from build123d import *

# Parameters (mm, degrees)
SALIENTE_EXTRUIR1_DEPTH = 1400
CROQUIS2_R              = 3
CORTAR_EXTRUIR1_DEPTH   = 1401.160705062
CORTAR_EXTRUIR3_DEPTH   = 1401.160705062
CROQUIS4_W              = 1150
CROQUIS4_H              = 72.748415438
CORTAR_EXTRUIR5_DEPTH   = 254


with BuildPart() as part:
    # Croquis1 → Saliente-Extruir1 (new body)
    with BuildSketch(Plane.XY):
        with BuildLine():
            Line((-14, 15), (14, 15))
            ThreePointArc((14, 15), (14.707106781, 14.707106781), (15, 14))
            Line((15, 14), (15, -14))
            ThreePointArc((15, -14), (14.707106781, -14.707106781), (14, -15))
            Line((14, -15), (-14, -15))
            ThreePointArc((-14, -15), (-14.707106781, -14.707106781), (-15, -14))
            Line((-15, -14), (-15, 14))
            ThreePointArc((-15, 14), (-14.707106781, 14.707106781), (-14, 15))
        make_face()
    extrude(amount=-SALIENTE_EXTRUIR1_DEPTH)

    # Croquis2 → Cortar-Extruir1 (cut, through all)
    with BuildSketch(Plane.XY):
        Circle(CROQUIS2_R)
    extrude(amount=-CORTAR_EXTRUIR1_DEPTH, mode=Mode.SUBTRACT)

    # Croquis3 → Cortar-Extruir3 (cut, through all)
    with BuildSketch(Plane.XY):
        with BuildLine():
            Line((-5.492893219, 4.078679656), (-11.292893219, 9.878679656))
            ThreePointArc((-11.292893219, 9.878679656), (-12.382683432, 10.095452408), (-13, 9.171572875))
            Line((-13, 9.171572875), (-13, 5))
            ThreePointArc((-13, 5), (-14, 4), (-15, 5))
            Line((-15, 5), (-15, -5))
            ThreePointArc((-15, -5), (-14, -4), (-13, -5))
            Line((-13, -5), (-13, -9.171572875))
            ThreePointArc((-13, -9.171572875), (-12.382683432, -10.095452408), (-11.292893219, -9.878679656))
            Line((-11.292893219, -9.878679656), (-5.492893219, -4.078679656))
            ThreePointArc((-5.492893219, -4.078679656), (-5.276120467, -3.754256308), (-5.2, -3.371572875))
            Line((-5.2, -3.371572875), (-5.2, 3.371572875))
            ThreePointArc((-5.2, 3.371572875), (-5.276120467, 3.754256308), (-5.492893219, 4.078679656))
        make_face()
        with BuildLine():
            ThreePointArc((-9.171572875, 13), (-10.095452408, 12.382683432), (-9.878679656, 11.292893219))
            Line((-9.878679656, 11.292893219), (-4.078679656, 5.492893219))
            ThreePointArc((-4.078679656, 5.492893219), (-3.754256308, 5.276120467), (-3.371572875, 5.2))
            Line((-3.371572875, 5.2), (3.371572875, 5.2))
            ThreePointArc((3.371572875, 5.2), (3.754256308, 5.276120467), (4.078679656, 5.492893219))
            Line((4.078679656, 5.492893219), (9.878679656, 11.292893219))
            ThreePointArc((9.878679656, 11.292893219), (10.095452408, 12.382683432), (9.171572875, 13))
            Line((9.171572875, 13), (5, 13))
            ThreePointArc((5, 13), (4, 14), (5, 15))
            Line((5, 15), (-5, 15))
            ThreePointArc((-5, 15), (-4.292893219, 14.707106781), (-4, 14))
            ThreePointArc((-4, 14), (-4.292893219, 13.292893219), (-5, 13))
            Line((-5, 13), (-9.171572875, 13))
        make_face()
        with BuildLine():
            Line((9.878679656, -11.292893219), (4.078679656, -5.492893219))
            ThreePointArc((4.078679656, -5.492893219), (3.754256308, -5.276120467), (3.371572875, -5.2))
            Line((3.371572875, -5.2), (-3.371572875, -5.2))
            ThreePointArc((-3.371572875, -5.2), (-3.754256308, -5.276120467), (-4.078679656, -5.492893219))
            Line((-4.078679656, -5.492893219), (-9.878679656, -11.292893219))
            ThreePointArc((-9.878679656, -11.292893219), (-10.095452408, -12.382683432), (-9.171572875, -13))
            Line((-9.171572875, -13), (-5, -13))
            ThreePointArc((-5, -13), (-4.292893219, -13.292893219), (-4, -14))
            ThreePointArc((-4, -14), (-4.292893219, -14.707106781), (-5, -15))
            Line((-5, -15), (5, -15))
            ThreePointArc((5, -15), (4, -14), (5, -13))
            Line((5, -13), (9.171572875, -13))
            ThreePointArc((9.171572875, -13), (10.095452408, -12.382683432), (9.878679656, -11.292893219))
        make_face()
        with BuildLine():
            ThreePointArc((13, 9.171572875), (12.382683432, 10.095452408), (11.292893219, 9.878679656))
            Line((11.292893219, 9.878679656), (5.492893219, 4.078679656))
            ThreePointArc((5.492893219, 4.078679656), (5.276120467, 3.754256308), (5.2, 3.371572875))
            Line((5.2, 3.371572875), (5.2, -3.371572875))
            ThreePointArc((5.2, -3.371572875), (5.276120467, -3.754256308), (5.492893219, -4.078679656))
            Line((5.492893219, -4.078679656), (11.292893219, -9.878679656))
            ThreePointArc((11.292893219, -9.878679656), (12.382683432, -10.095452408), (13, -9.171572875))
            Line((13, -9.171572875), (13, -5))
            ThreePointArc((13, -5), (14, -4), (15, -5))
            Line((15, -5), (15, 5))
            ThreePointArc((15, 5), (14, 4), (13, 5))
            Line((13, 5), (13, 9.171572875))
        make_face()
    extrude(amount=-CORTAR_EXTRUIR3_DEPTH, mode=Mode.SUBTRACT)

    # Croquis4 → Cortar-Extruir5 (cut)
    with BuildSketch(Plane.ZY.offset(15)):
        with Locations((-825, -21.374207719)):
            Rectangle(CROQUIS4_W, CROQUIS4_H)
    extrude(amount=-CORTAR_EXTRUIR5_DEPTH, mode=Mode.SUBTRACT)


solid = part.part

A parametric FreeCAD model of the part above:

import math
import FreeCAD as App
import Part
import Sketcher

V = App.Vector
Q = App.Units.Quantity

doc = App.newDocument("Part")
body = doc.addObject("PartDesign::Body", "Body")

sketch1 = body.newObject("Sketcher::SketchObject", "Sketch")
sketch1.AttachmentSupport = (doc.getObject("XY_Plane"), [""])
sketch1.MapMode = "FlatFace"
sketch1.addGeometry(Part.LineSegment(V(14, 15, 0), V(-14, 15, 0)), False)
sketch1.addGeometry(Part.ArcOfCircle(Part.Circle(V(-14, 14, 0), V(0, 0, 1), 1), math.radians(90), math.radians(180)), False)
sketch1.addGeometry(Part.LineSegment(V(-15, 14, 0), V(-15, -14, 0)), False)
sketch1.addGeometry(Part.ArcOfCircle(Part.Circle(V(-14, -14, 0), V(0, 0, 1), 1), math.radians(-180), math.radians(-90)), False)
sketch1.addGeometry(Part.LineSegment(V(-14, -15, 0), V(14, -15, 0)), False)
sketch1.addGeometry(Part.ArcOfCircle(Part.Circle(V(14, -14, 0), V(0, 0, 1), 1), math.radians(-90), math.radians(0)), False)
sketch1.addGeometry(Part.LineSegment(V(15, -14, 0), V(15, 14, 0)), False)
sketch1.addGeometry(Part.ArcOfCircle(Part.Circle(V(14, 14, 0), V(0, 0, 1), 1), math.radians(0), math.radians(90)), False)
sketch1.addConstraint(Sketcher.Constraint("Tangent", 0, 2, 1, 1))
sketch1.addConstraint(Sketcher.Constraint("Tangent", 1, 2, 2, 1))
sketch1.addConstraint(Sketcher.Constraint("Tangent", 2, 2, 3, 1))
sketch1.addConstraint(Sketcher.Constraint("Tangent", 3, 2, 4, 1))
sketch1.addConstraint(Sketcher.Constraint("Tangent", 4, 2, 5, 1))
sketch1.addConstraint(Sketcher.Constraint("Tangent", 5, 2, 6, 1))
sketch1.addConstraint(Sketcher.Constraint("Tangent", 6, 2, 7, 1))
sketch1.addConstraint(Sketcher.Constraint("Tangent", 7, 2, 0, 1))
sketch1.addConstraint(Sketcher.Constraint("Horizontal", 0))
sketch1.addConstraint(Sketcher.Constraint("Vertical", 2))
sketch1.addConstraint(Sketcher.Constraint("Horizontal", 4))
sketch1.addConstraint(Sketcher.Constraint("Vertical", 6))
sketch1.addConstraint(Sketcher.Constraint("Equal", 1, 3))
sketch1.addConstraint(Sketcher.Constraint("Equal", 3, 5))
sketch1.addConstraint(Sketcher.Constraint("Equal", 5, 7))
sketch1.addConstraint(Sketcher.Constraint("Symmetric", 1, 3, 5, 3, -1, 1))
sketch1.addConstraint(Sketcher.Constraint("Equal", 4, 2))
sketch1.addConstraint(Sketcher.Constraint("Radius", 1, Q("1 mm")))
sketch1.addConstraint(Sketcher.Constraint("DistanceX", 0, 2, 0, 1, Q("28 mm")))
pad1 = body.newObject("PartDesign::Pad", "Pad")
pad1.Profile = sketch1
pad1.Length = 1400
pad1.Reversed = True

sketch2 = body.newObject("Sketcher::SketchObject", "Sketch001")
sketch2.AttachmentSupport = (doc.getObject("XY_Plane"), [""])
sketch2.MapMode = "FlatFace"
sketch2.addGeometry(Part.Circle(V(0, 0, 0), V(0, 0, 1), 3), False)
sketch2.addConstraint(Sketcher.Constraint("Coincident", 0, 3, -1, 1))
sketch2.addConstraint(Sketcher.Constraint("Diameter", 0, Q("6 mm")))
pocket1 = body.newObject("PartDesign::Pocket", "Pocket")
pocket1.Profile = sketch2
pocket1.Type = "ThroughAll"

sketch3 = body.newObject("Sketcher::SketchObject", "Sketch002")
sketch3.AttachmentSupport = (doc.getObject("XY_Plane"), [""])
sketch3.MapMode = "FlatFace"
sketch3.addGeometry(Part.LineSegment(V(-5.5, 4.1, 0), V(-11.3, 9.9, 0)), False)
sketch3.addGeometry(Part.ArcOfCircle(Part.Circle(V(-12, 9.2, 0), V(0, 0, 1), 1), math.radians(45), math.radians(180)), False)
sketch3.addGeometry(Part.LineSegment(V(-13, 9.2, 0), V(-13, 5, 0)), False)
sketch3.addGeometry(Part.ArcOfCircle(Part.Circle(V(-14, 5, 0), V(0, 0, 1), 1), math.radians(180), math.radians(360)), False)
sketch3.addGeometry(Part.LineSegment(V(-15, 5, 0), V(-15, -5, 0)), False)
sketch3.addGeometry(Part.ArcOfCircle(Part.Circle(V(-14, -5, 0), V(0, 0, 1), 1), math.radians(0), math.radians(180)), False)
sketch3.addGeometry(Part.LineSegment(V(-13, -5, 0), V(-13, -9.2, 0)), False)
sketch3.addGeometry(Part.ArcOfCircle(Part.Circle(V(-12, -9.2, 0), V(0, 0, 1), 1), math.radians(180), math.radians(315)), False)
sketch3.addGeometry(Part.LineSegment(V(-11.3, -9.9, 0), V(-5.5, -4.1, 0)), False)
sketch3.addGeometry(Part.ArcOfCircle(Part.Circle(V(-6.2, -3.4, 0), V(0, 0, 1), 1), math.radians(-45), math.radians(0)), False)
sketch3.addGeometry(Part.LineSegment(V(-5.2, -3.4, 0), V(-5.2, 3.4, 0)), False)
sketch3.addGeometry(Part.ArcOfCircle(Part.Circle(V(-6.2, 3.4, 0), V(0, 0, 1), 1), math.radians(0), math.radians(45)), False)
sketch3.addGeometry(Part.ArcOfCircle(Part.Circle(V(-9.2, 12, 0), V(0, 0, 1), 1), math.radians(90), math.radians(225)), False)
sketch3.addGeometry(Part.LineSegment(V(-9.9, 11.3, 0), V(-4.1, 5.5, 0)), False)
sketch3.addGeometry(Part.ArcOfCircle(Part.Circle(V(-3.4, 6.2, 0), V(0, 0, 1), 1), math.radians(-135), math.radians(-90)), False)
sketch3.addGeometry(Part.LineSegment(V(-3.4, 5.2, 0), V(3.4, 5.2, 0)), False)
sketch3.addGeometry(Part.ArcOfCircle(Part.Circle(V(3.4, 6.2, 0), V(0, 0, 1), 1), math.radians(-90), math.radians(-45)), False)
sketch3.addGeometry(Part.LineSegment(V(4.1, 5.5, 0), V(9.9, 11.3, 0)), False)
sketch3.addGeometry(Part.ArcOfCircle(Part.Circle(V(9.2, 12, 0), V(0, 0, 1), 1), math.radians(-45), math.radians(90)), False)
sketch3.addGeometry(Part.LineSegment(V(9.2, 13, 0), V(5, 13, 0)), False)
sketch3.addGeometry(Part.ArcOfCircle(Part.Circle(V(5, 14, 0), V(0, 0, 1), 1), math.radians(90), math.radians(270)), False)
sketch3.addGeometry(Part.LineSegment(V(5, 15, 0), V(-5, 15, 0)), False)
sketch3.addGeometry(Part.ArcOfCircle(Part.Circle(V(-5, 14, 0), V(0, 0, 1), 1), math.radians(0), math.radians(90)), False)
sketch3.addGeometry(Part.ArcOfCircle(Part.Circle(V(-5, 14, 0), V(0, 0, 1), 1), math.radians(-90), math.radians(0)), False)
sketch3.addGeometry(Part.LineSegment(V(-5, 13, 0), V(-9.2, 13, 0)), False)
sketch3.addGeometry(Part.LineSegment(V(9.9, -11.3, 0), V(4.1, -5.5, 0)), False)
sketch3.addGeometry(Part.ArcOfCircle(Part.Circle(V(3.4, -6.2, 0), V(0, 0, 1), 1), math.radians(45), math.radians(90)), False)
sketch3.addGeometry(Part.LineSegment(V(3.4, -5.2, 0), V(-3.4, -5.2, 0)), False)
sketch3.addGeometry(Part.ArcOfCircle(Part.Circle(V(-3.4, -6.2, 0), V(0, 0, 1), 1), math.radians(90), math.radians(135)), False)
sketch3.addGeometry(Part.LineSegment(V(-4.1, -5.5, 0), V(-9.9, -11.3, 0)), False)
sketch3.addGeometry(Part.ArcOfCircle(Part.Circle(V(-9.2, -12, 0), V(0, 0, 1), 1), math.radians(135), math.radians(270)), False)
sketch3.addGeometry(Part.LineSegment(V(-9.2, -13, 0), V(-5, -13, 0)), False)
sketch3.addGeometry(Part.ArcOfCircle(Part.Circle(V(-5, -14, 0), V(0, 0, 1), 1), math.radians(0), math.radians(90)), False)
sketch3.addGeometry(Part.ArcOfCircle(Part.Circle(V(-5, -14, 0), V(0, 0, 1), 1), math.radians(-90), math.radians(0)), False)
sketch3.addGeometry(Part.LineSegment(V(-5, -15, 0), V(5, -15, 0)), False)
sketch3.addGeometry(Part.ArcOfCircle(Part.Circle(V(5, -14, 0), V(0, 0, 1), 1), math.radians(90), math.radians(270)), False)
sketch3.addGeometry(Part.LineSegment(V(5, -13, 0), V(9.2, -13, 0)), False)
sketch3.addGeometry(Part.ArcOfCircle(Part.Circle(V(9.2, -12, 0), V(0, 0, 1), 1), math.radians(-90), math.radians(45)), False)
sketch3.addGeometry(Part.ArcOfCircle(Part.Circle(V(12, 9.2, 0), V(0, 0, 1), 1), math.radians(0), math.radians(135)), False)
sketch3.addGeometry(Part.LineSegment(V(11.3, 9.9, 0), V(5.5, 4.1, 0)), False)
sketch3.addGeometry(Part.ArcOfCircle(Part.Circle(V(6.2, 3.4, 0), V(0, 0, 1), 1), math.radians(135), math.radians(180)), False)
sketch3.addGeometry(Part.LineSegment(V(5.2, 3.4, 0), V(5.2, -3.4, 0)), False)
sketch3.addGeometry(Part.ArcOfCircle(Part.Circle(V(6.2, -3.4, 0), V(0, 0, 1), 1), math.radians(180), math.radians(225)), False)
sketch3.addGeometry(Part.LineSegment(V(5.5, -4.1, 0), V(11.3, -9.9, 0)), False)
sketch3.addGeometry(Part.ArcOfCircle(Part.Circle(V(12, -9.2, 0), V(0, 0, 1), 1), math.radians(-135), math.radians(0)), False)
sketch3.addGeometry(Part.LineSegment(V(13, -9.2, 0), V(13, -5, 0)), False)
sketch3.addGeometry(Part.ArcOfCircle(Part.Circle(V(14, -5, 0), V(0, 0, 1), 1), math.radians(0), math.radians(180)), False)
sketch3.addGeometry(Part.LineSegment(V(15, -5, 0), V(15, 5, 0)), False)
sketch3.addGeometry(Part.ArcOfCircle(Part.Circle(V(14, 5, 0), V(0, 0, 1), 1), math.radians(180), math.radians(360)), False)
sketch3.addGeometry(Part.LineSegment(V(13, 5, 0), V(13, 9.2, 0)), False)
sketch3.addConstraint(Sketcher.Constraint("Tangent", 0, 2, 1, 1))
sketch3.addConstraint(Sketcher.Constraint("Tangent", 1, 2, 2, 1))
sketch3.addConstraint(Sketcher.Constraint("Tangent", 2, 2, 3, 2))
sketch3.addConstraint(Sketcher.Constraint("Tangent", 3, 1, 4, 1))
sketch3.addConstraint(Sketcher.Constraint("Tangent", 4, 2, 5, 2))
sketch3.addConstraint(Sketcher.Constraint("Tangent", 5, 1, 6, 1))
sketch3.addConstraint(Sketcher.Constraint("Tangent", 6, 2, 7, 1))
sketch3.addConstraint(Sketcher.Constraint("Tangent", 7, 2, 8, 1))
sketch3.addConstraint(Sketcher.Constraint("Tangent", 8, 2, 9, 1))
sketch3.addConstraint(Sketcher.Constraint("Tangent", 9, 2, 10, 1))
sketch3.addConstraint(Sketcher.Constraint("Tangent", 10, 2, 11, 1))
sketch3.addConstraint(Sketcher.Constraint("Tangent", 11, 2, 0, 1))
sketch3.addConstraint(Sketcher.Constraint("Tangent", 12, 2, 13, 1))
sketch3.addConstraint(Sketcher.Constraint("Tangent", 13, 2, 14, 1))
sketch3.addConstraint(Sketcher.Constraint("Tangent", 14, 2, 15, 1))
sketch3.addConstraint(Sketcher.Constraint("Tangent", 15, 2, 16, 1))
sketch3.addConstraint(Sketcher.Constraint("Tangent", 16, 2, 17, 1))
sketch3.addConstraint(Sketcher.Constraint("Tangent", 17, 2, 18, 1))
sketch3.addConstraint(Sketcher.Constraint("Tangent", 18, 2, 19, 1))
sketch3.addConstraint(Sketcher.Constraint("Tangent", 19, 2, 20, 2))
sketch3.addConstraint(Sketcher.Constraint("Tangent", 20, 1, 21, 1))
sketch3.addConstraint(Sketcher.Constraint("Tangent", 21, 2, 22, 2))
sketch3.addConstraint(Sketcher.Constraint("Tangent", 22, 1, 23, 2))
sketch3.addConstraint(Sketcher.Constraint("Tangent", 23, 1, 24, 1))
sketch3.addConstraint(Sketcher.Constraint("Tangent", 24, 2, 12, 1))
sketch3.addConstraint(Sketcher.Constraint("Tangent", 25, 2, 26, 1))
sketch3.addConstraint(Sketcher.Constraint("Tangent", 26, 2, 27, 1))
sketch3.addConstraint(Sketcher.Constraint("Tangent", 27, 2, 28, 1))
sketch3.addConstraint(Sketcher.Constraint("Tangent", 28, 2, 29, 1))
sketch3.addConstraint(Sketcher.Constraint("Tangent", 29, 2, 30, 1))
sketch3.addConstraint(Sketcher.Constraint("Tangent", 30, 2, 31, 1))
sketch3.addConstraint(Sketcher.Constraint("Tangent", 31, 2, 32, 2))
sketch3.addConstraint(Sketcher.Constraint("Tangent", 32, 1, 33, 2))
sketch3.addConstraint(Sketcher.Constraint("Tangent", 33, 1, 34, 1))
sketch3.addConstraint(Sketcher.Constraint("Tangent", 34, 2, 35, 2))
sketch3.addConstraint(Sketcher.Constraint("Tangent", 35, 1, 36, 1))
sketch3.addConstraint(Sketcher.Constraint("Tangent", 36, 2, 37, 1))
sketch3.addConstraint(Sketcher.Constraint("Tangent", 37, 2, 25, 1))
sketch3.addConstraint(Sketcher.Constraint("Tangent", 38, 2, 39, 1))
sketch3.addConstraint(Sketcher.Constraint("Tangent", 39, 2, 40, 1))
sketch3.addConstraint(Sketcher.Constraint("Tangent", 40, 2, 41, 1))
sketch3.addConstraint(Sketcher.Constraint("Tangent", 41, 2, 42, 1))
sketch3.addConstraint(Sketcher.Constraint("Tangent", 42, 2, 43, 1))
sketch3.addConstraint(Sketcher.Constraint("Tangent", 43, 2, 44, 1))
sketch3.addConstraint(Sketcher.Constraint("Tangent", 44, 2, 45, 1))
sketch3.addConstraint(Sketcher.Constraint("Tangent", 45, 2, 46, 2))
sketch3.addConstraint(Sketcher.Constraint("Tangent", 46, 1, 47, 1))
sketch3.addConstraint(Sketcher.Constraint("Tangent", 47, 2, 48, 2))
sketch3.addConstraint(Sketcher.Constraint("Tangent", 48, 1, 49, 1))
sketch3.addConstraint(Sketcher.Constraint("Tangent", 49, 2, 38, 1))
sketch3.addConstraint(Sketcher.Constraint("Vertical", 2))
sketch3.addConstraint(Sketcher.Constraint("Vertical", 4))
sketch3.addConstraint(Sketcher.Constraint("Vertical", 6))
sketch3.addConstraint(Sketcher.Constraint("Vertical", 10))
sketch3.addConstraint(Sketcher.Constraint("Horizontal", 15))
sketch3.addConstraint(Sketcher.Constraint("Horizontal", 19))
sketch3.addConstraint(Sketcher.Constraint("Horizontal", 21))
sketch3.addConstraint(Sketcher.Constraint("Horizontal", 24))
sketch3.addConstraint(Sketcher.Constraint("Horizontal", 27))
sketch3.addConstraint(Sketcher.Constraint("Horizontal", 31))
sketch3.addConstraint(Sketcher.Constraint("Horizontal", 34))
sketch3.addConstraint(Sketcher.Constraint("Horizontal", 36))
sketch3.addConstraint(Sketcher.Constraint("Vertical", 41))
sketch3.addConstraint(Sketcher.Constraint("Vertical", 45))
sketch3.addConstraint(Sketcher.Constraint("Vertical", 47))
sketch3.addConstraint(Sketcher.Constraint("Vertical", 49))
sketch3.addConstraint(Sketcher.Constraint("Equal", 1, 3))
sketch3.addConstraint(Sketcher.Constraint("Equal", 3, 5))
sketch3.addConstraint(Sketcher.Constraint("Equal", 5, 7))
sketch3.addConstraint(Sketcher.Constraint("Equal", 7, 9))
sketch3.addConstraint(Sketcher.Constraint("Equal", 9, 11))
sketch3.addConstraint(Sketcher.Constraint("Equal", 11, 12))
sketch3.addConstraint(Sketcher.Constraint("Equal", 12, 14))
sketch3.addConstraint(Sketcher.Constraint("Equal", 14, 16))
sketch3.addConstraint(Sketcher.Constraint("Equal", 16, 18))
sketch3.addConstraint(Sketcher.Constraint("Equal", 18, 20))
sketch3.addConstraint(Sketcher.Constraint("Equal", 20, 22))
sketch3.addConstraint(Sketcher.Constraint("Equal", 22, 23))
sketch3.addConstraint(Sketcher.Constraint("Equal", 23, 26))
sketch3.addConstraint(Sketcher.Constraint("Equal", 26, 28))
sketch3.addConstraint(Sketcher.Constraint("Equal", 28, 30))
sketch3.addConstraint(Sketcher.Constraint("Equal", 30, 32))
sketch3.addConstraint(Sketcher.Constraint("Equal", 32, 33))
sketch3.addConstraint(Sketcher.Constraint("Equal", 33, 35))
sketch3.addConstraint(Sketcher.Constraint("Equal", 35, 37))
sketch3.addConstraint(Sketcher.Constraint("Equal", 37, 38))
sketch3.addConstraint(Sketcher.Constraint("Equal", 38, 40))
sketch3.addConstraint(Sketcher.Constraint("Equal", 40, 42))
sketch3.addConstraint(Sketcher.Constraint("Equal", 42, 44))
sketch3.addConstraint(Sketcher.Constraint("Equal", 44, 46))
sketch3.addConstraint(Sketcher.Constraint("Equal", 46, 48))
sketch3.addConstraint(Sketcher.Constraint("Symmetric", 14, 3, 26, 3, -1, 1))
sketch3.addConstraint(Sketcher.Constraint("Symmetric", 18, 3, 30, 3, -1, 1))
sketch3.addConstraint(Sketcher.Constraint("Symmetric", 7, 3, 38, 3, -1, 1))
sketch3.addConstraint(Sketcher.Constraint("Symmetric", 9, 3, 40, 3, -1, 1))
sketch3.addConstraint(Sketcher.Constraint("Symmetric", 11, 2, 42, 2, -1, 1))
sketch3.addConstraint(Sketcher.Constraint("Symmetric", 13, 2, 16, 2, -2))
sketch3.addConstraint(Sketcher.Constraint("Symmetric", 25, 2, 28, 2, -2))
sketch3.addConstraint(Sketcher.Constraint("Symmetric", 0, 2, 38, 2, -2))
sketch3.addConstraint(Sketcher.Constraint("Symmetric", 22, 1, 32, 1, -1))
sketch3.addConstraint(Sketcher.Constraint("Perpendicular", 0, 8))
sketch3.addConstraint(Sketcher.Constraint("Perpendicular", 8, 13))
sketch3.addConstraint(Sketcher.Constraint("Horizontal", 5, 3, 46, 3))
sketch3.addConstraint(Sketcher.Constraint("Horizontal", 3, 3, 48, 3))
sketch3.addConstraint(Sketcher.Constraint("Horizontal", 23, 3, 22, 1))
sketch3.addConstraint(Sketcher.Constraint("Vertical", 20, 3, 35, 3))
sketch3.addConstraint(Sketcher.Constraint("Equal", 19, 24))
sketch3.addConstraint(Sketcher.Constraint("Equal", 36, 2))
sketch3.addConstraint(Sketcher.Constraint("Equal", 34, 4))
sketch3.addConstraint(Sketcher.Constraint("Equal", 2, 6))
sketch3.addConstraint(Sketcher.Constraint("Equal", 27, 10))
sketch3.addConstraint(Sketcher.Constraint("Radius", 1, Q("1 mm")))
sketch3.addConstraint(Sketcher.Constraint("DistanceX", 21, 2, 21, 1, Q("10 mm")))
sketch3.addConstraint(Sketcher.Constraint("DistanceX", 1, 3, -1, 1, Q("12 mm")))
sketch3.addConstraint(Sketcher.Constraint("DistanceY", -1, 1, 12, 3, Q("12 mm")))
sketch3.addConstraint(Sketcher.Constraint("DistanceX", 9, 3, -1, 1, Q("6.2 mm")))
sketch3.addConstraint(Sketcher.Constraint("DistanceX", 15, 1, 15, 2, Q("6.743146 mm")))
pocket2 = body.newObject("PartDesign::Pocket", "Pocket001")
pocket2.Profile = sketch3
pocket2.Type = "ThroughAll"

sketch4 = body.newObject("Sketcher::SketchObject", "Sketch003")
sketch4.AttachmentSupport = (doc.getObject("YZ_Plane"), [""])
sketch4.MapMode = "FlatFace"
sketch4.AttachmentOffset = App.Placement(V(0, 0, -15), App.Rotation())
sketch4.addGeometry(Part.LineSegment(V(15, -1400, 0), V(-58, -1400, 0)), False)
sketch4.addGeometry(Part.LineSegment(V(-58, -1400, 0), V(-58, -250, 0)), False)
sketch4.addGeometry(Part.LineSegment(V(-58, -250, 0), V(15, -250, 0)), False)
sketch4.addGeometry(Part.LineSegment(V(15, -250, 0), V(15, -1400, 0)), False)
sketch4.addConstraint(Sketcher.Constraint("Coincident", 0, 2, 1, 1))
sketch4.addConstraint(Sketcher.Constraint("Coincident", 1, 2, 2, 1))
sketch4.addConstraint(Sketcher.Constraint("Coincident", 2, 2, 3, 1))
sketch4.addConstraint(Sketcher.Constraint("Coincident", 3, 2, 0, 1))
sketch4.addConstraint(Sketcher.Constraint("Horizontal", 0))
sketch4.addConstraint(Sketcher.Constraint("Vertical", 1))
sketch4.addConstraint(Sketcher.Constraint("Horizontal", 2))
sketch4.addConstraint(Sketcher.Constraint("Vertical", 3))
sketch4.addConstraint(Sketcher.Constraint("DistanceY", 1, 1, 1, 2, Q("1150 mm")))
sketch4.addConstraint(Sketcher.Constraint("DistanceY", 0, 2, -1, 1, Q("1400 mm")))
sketch4.addConstraint(Sketcher.Constraint("DistanceX", -1, 1, 2, 2, Q("15 mm")))
sketch4.addConstraint(Sketcher.Constraint("DistanceX", 0, 2, 0, 1, Q("72.748415 mm")))
pocket3 = body.newObject("PartDesign::Pocket", "Pocket002")
pocket3.Profile = sketch4
pocket3.Length = 254
pocket3.Reversed = True

doc.recompute()
